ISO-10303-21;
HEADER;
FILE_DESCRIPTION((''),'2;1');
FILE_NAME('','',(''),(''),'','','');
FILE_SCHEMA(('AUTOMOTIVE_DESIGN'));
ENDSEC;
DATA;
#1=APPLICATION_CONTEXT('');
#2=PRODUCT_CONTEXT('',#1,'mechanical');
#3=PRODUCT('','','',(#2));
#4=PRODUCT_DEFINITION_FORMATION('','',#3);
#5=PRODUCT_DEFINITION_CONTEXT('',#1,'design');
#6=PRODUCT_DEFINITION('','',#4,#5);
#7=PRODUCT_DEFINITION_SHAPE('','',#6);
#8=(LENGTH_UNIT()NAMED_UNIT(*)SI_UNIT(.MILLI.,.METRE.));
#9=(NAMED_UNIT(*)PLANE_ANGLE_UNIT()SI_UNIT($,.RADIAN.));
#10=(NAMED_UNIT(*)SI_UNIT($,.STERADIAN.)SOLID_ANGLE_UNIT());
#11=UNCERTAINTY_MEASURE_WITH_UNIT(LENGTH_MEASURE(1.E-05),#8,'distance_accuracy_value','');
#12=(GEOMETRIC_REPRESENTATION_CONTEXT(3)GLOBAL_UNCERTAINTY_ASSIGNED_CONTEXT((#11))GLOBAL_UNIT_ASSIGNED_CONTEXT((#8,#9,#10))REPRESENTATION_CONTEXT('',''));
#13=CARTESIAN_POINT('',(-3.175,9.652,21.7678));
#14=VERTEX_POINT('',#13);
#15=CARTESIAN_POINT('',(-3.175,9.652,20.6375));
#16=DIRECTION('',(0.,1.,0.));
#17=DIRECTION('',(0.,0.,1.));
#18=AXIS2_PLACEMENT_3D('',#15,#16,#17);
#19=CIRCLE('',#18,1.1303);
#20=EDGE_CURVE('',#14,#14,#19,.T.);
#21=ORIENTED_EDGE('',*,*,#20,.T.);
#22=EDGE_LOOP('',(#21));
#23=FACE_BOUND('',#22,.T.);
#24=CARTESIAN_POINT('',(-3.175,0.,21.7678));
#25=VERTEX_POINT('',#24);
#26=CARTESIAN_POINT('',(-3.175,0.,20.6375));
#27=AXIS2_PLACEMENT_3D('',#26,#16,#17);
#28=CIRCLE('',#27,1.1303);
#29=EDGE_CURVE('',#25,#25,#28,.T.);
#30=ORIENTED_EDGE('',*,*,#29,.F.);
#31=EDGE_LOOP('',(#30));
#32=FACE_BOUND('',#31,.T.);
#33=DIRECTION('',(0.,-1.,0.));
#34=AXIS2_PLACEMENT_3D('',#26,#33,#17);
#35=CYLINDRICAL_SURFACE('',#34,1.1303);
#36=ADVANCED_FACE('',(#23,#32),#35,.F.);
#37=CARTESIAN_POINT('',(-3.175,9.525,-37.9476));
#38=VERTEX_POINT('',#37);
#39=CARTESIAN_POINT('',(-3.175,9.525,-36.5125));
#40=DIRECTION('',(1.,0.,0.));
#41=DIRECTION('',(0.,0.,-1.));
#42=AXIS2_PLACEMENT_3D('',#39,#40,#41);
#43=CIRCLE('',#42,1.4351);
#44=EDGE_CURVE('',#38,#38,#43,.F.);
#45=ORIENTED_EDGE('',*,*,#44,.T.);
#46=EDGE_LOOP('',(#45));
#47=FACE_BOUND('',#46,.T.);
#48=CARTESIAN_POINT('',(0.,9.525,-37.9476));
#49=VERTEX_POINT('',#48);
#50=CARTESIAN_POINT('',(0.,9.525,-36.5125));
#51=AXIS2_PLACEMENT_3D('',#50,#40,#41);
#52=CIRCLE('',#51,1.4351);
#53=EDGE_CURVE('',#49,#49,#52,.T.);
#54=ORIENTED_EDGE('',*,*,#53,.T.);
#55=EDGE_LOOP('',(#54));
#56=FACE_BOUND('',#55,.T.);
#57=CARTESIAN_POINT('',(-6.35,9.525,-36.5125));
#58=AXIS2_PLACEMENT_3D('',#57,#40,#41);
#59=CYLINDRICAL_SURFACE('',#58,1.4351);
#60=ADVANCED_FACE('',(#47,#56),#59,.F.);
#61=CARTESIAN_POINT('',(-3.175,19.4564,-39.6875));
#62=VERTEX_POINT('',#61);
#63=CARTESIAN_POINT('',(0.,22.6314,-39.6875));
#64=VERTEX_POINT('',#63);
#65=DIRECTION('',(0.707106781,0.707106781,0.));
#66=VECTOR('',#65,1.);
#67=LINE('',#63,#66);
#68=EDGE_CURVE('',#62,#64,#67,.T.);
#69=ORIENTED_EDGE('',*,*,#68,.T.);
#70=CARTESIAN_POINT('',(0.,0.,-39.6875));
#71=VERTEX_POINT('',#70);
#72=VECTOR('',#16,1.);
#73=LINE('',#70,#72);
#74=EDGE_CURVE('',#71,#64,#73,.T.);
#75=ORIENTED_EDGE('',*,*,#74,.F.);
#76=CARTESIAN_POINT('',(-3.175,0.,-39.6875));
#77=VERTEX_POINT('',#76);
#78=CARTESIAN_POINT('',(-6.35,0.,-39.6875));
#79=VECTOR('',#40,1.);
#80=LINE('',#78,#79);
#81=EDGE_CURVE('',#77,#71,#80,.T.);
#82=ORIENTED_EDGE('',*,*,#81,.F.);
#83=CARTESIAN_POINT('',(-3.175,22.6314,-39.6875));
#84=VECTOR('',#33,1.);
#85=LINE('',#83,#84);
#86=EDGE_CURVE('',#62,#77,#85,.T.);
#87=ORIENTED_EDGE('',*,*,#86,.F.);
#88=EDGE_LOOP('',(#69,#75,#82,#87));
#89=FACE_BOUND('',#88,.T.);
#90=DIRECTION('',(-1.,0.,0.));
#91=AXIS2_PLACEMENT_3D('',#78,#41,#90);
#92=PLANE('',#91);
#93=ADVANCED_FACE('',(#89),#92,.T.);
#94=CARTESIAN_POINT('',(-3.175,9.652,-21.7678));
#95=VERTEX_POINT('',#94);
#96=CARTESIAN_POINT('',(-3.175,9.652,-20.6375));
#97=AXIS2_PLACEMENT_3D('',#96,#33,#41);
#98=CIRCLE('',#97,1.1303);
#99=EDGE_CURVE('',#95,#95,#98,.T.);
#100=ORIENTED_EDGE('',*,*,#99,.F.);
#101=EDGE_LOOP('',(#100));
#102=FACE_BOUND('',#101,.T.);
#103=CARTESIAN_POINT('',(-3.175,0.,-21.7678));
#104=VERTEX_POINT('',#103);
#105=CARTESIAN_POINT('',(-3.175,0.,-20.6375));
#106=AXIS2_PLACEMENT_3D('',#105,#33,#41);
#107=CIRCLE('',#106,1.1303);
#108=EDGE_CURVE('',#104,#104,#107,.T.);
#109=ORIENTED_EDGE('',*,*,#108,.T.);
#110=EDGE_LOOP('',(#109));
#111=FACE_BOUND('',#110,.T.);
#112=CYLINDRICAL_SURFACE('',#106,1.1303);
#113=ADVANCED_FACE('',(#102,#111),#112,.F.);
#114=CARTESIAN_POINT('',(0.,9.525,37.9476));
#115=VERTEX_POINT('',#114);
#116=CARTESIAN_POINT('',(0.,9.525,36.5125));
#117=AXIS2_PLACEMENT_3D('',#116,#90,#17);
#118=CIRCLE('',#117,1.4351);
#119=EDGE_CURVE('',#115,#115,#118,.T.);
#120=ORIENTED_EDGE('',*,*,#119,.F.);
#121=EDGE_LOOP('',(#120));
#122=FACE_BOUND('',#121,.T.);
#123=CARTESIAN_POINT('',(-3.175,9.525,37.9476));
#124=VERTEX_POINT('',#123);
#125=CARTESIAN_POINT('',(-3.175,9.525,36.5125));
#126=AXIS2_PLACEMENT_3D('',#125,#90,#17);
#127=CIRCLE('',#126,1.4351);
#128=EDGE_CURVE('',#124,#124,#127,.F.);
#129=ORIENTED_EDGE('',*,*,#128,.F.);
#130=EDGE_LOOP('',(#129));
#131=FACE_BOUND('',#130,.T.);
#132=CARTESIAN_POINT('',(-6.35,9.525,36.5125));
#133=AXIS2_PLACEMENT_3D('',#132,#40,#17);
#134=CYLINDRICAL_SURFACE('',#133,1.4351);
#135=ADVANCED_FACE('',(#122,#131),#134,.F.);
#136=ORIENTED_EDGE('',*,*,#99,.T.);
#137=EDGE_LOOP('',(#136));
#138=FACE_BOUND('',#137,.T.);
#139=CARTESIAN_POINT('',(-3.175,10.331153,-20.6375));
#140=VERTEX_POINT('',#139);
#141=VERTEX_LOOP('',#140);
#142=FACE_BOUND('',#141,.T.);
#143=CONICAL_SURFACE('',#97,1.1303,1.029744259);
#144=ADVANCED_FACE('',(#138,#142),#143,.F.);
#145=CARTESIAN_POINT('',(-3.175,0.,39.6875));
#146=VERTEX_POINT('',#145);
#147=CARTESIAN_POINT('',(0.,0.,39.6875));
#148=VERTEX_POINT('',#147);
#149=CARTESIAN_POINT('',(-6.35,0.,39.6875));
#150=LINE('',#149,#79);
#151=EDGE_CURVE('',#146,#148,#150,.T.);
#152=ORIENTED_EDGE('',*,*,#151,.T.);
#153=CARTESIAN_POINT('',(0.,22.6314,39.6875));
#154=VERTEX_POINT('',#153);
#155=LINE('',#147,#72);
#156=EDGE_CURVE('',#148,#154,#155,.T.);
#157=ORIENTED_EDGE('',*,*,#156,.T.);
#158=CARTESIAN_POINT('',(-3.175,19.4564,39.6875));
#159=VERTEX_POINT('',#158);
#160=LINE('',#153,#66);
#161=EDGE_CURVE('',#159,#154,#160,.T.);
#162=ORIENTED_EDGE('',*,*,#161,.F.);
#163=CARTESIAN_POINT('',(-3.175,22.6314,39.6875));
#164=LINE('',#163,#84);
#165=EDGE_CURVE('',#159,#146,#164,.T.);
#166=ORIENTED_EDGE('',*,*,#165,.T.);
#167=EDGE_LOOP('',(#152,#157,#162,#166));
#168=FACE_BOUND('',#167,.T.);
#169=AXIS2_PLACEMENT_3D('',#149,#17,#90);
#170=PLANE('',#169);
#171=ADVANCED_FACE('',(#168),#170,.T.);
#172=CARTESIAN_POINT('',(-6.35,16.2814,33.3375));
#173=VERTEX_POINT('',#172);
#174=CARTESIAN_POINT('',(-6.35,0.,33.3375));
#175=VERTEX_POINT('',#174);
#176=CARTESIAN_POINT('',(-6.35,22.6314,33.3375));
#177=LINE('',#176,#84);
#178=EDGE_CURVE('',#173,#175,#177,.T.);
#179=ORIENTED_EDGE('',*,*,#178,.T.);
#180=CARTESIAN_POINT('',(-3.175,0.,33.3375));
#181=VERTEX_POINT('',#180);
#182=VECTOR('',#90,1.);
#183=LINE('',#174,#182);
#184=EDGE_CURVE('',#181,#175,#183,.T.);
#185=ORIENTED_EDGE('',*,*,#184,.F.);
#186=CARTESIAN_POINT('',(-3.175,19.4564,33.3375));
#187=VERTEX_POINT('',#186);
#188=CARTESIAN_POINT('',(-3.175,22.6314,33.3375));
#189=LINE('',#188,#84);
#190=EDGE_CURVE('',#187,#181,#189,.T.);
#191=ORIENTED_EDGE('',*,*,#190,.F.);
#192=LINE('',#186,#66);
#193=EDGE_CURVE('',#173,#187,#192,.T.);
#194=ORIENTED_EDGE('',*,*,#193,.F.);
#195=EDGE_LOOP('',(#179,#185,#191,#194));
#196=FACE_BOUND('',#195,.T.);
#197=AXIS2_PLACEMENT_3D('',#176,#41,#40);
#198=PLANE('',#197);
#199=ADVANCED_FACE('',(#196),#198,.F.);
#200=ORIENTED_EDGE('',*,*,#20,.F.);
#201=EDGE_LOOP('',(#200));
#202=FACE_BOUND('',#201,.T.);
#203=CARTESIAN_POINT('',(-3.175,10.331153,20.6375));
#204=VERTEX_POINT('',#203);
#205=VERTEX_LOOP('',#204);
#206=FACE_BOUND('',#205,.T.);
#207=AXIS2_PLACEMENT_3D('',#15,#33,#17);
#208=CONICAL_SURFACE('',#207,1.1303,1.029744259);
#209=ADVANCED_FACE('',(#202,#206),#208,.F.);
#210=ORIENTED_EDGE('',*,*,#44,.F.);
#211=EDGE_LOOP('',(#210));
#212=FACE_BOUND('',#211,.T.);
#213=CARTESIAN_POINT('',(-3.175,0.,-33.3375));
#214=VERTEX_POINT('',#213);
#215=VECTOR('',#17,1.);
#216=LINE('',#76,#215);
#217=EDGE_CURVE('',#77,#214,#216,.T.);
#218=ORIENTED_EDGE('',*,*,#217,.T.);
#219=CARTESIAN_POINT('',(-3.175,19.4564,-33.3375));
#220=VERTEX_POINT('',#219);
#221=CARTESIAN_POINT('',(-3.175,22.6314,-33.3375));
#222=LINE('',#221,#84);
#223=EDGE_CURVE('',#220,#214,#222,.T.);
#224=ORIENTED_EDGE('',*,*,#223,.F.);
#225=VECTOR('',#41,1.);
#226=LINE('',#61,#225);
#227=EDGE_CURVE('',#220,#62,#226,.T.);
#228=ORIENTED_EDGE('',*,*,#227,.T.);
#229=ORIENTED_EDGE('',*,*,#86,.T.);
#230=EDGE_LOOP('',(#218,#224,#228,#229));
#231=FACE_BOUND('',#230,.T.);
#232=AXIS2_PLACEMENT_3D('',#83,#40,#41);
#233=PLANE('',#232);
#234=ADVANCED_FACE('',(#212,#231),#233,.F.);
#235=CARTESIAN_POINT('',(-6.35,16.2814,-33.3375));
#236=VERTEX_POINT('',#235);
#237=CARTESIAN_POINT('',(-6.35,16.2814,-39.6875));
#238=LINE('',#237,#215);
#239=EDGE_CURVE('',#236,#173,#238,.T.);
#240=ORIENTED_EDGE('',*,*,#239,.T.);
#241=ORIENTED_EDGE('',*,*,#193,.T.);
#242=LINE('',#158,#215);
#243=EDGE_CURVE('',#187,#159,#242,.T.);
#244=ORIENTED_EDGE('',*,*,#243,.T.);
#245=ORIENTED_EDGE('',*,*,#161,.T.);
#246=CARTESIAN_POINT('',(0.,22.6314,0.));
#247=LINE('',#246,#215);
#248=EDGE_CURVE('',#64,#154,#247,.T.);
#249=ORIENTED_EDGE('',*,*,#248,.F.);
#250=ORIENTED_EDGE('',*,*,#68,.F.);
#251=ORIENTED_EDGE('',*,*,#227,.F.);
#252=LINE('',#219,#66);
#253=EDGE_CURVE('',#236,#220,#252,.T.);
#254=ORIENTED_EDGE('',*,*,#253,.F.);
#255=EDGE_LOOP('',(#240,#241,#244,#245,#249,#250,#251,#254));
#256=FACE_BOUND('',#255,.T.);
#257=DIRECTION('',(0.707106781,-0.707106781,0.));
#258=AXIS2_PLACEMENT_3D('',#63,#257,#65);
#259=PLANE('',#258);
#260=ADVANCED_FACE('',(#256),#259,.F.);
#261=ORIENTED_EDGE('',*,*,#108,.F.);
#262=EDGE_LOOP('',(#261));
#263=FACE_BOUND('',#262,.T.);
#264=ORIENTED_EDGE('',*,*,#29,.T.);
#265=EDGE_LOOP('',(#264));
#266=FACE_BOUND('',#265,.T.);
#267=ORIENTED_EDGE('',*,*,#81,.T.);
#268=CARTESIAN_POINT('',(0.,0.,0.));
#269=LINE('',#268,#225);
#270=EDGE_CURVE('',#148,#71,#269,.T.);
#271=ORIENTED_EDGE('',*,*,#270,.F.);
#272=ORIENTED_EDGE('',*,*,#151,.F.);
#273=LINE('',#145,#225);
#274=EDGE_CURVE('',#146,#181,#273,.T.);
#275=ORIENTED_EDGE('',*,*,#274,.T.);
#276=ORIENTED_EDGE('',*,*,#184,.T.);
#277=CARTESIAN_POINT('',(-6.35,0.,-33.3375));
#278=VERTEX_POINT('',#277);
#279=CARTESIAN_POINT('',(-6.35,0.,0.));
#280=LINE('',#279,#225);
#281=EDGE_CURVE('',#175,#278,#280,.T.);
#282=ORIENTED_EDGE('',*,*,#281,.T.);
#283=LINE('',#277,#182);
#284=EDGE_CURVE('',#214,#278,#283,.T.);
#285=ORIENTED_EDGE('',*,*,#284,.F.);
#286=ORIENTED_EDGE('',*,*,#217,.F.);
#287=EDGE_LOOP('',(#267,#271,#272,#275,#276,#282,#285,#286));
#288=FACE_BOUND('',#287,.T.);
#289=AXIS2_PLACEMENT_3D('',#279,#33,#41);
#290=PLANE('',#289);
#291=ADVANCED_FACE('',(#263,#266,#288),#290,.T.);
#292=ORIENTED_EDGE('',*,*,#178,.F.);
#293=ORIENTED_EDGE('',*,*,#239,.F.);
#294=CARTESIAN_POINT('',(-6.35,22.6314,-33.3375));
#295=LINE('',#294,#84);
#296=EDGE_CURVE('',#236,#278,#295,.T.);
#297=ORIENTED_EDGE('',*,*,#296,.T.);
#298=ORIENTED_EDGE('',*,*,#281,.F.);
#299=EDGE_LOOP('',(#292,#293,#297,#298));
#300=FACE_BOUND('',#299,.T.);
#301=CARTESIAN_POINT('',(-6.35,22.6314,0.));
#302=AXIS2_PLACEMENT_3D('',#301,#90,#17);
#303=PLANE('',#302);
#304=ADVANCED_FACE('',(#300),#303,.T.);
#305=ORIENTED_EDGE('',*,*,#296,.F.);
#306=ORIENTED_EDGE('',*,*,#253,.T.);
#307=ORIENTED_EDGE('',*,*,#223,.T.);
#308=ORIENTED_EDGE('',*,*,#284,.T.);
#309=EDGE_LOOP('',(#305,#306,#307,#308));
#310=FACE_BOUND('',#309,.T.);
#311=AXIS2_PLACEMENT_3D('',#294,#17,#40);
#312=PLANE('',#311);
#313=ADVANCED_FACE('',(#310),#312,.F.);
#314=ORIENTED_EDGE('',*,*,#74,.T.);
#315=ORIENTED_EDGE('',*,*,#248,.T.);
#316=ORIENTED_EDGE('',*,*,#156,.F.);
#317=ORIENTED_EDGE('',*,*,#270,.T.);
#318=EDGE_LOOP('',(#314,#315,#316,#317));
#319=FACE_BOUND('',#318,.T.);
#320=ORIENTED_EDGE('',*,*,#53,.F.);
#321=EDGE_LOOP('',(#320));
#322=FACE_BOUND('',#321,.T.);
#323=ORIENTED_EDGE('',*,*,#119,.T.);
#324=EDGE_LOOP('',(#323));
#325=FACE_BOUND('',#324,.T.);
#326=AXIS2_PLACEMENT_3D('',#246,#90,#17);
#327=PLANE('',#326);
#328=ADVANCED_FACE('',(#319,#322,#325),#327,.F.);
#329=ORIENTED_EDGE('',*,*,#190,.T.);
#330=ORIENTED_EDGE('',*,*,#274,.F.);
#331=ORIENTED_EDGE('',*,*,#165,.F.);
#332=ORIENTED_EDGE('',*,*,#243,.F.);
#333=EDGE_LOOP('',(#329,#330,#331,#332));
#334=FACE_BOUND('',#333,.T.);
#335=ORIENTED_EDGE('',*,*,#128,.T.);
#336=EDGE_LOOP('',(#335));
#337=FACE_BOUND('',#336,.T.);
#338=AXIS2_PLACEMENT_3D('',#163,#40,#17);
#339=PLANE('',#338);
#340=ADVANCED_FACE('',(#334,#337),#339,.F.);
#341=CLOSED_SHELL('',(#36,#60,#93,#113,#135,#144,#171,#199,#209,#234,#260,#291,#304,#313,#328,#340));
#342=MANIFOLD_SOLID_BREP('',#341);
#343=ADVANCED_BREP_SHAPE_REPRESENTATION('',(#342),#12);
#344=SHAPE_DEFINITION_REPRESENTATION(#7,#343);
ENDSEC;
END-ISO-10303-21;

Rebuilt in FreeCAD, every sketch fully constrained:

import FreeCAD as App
import Part
import Sketcher

V = App.Vector
Q = App.Units.Quantity


def add_polygon(sketch, points):
    """Adds a closed chain of lines whose ends are joined by coincident constraints."""
    first, n = sketch.GeometryCount, len(points)
    for a, b in zip(points, points[1:] + points[:1]):
        sketch.addGeometry(Part.LineSegment(App.Vector(*a, 0), App.Vector(*b, 0)), False)
    for i in range(n):
        sketch.addConstraint(Sketcher.Constraint("Coincident", first + i, 2, first + (i + 1) % n, 1))

doc = App.newDocument("Part")
body = doc.addObject("PartDesign::Body", "Body")

# Sketch on YZ plane
sketch1 = doc.addObject("Sketcher::SketchObject", "Sketch")
body.addObject(sketch1)
sketch1.AttachmentSupport = (doc.YZ_Plane, [""])
sketch1.MapMode = "FlatFace"
add_polygon(sketch1, [(22.6, 0), (0, 0), (0, -39.7), (22.6, -39.7)])  # lines 0-3
sketch1.addGeometry(Part.Circle(V(9.5, -36.5, 0), V(0, 0, 1), 1.4), False)  # 4
sketch1.addConstraint([
    Sketcher.Constraint("Horizontal", 0),
    Sketcher.Constraint("Vertical", 1),
    Sketcher.Constraint("Horizontal", 2),
    Sketcher.Constraint("Vertical", 3),
    Sketcher.Constraint("Coincident", 0, 2, -1, 1),
    Sketcher.Constraint("Diameter", 4, Q("0.113 in")),
    Sketcher.Constraint("DistanceX", 0, 2, 0, 1, Q("0.891 in")),
    Sketcher.Constraint("DistanceY", 1, 2, 1, 1, Q("1.5625 in")),
    Sketcher.Constraint("DistanceX", -1, 1, 4, 3, Q("0.375 in")),
    Sketcher.Constraint("DistanceY", 4, 3, -1, 1, Q("1.4375 in")),
])
pad1 = doc.addObject("PartDesign::Pad", "Pad")
body.addObject(pad1)
pad1.Profile = sketch1
pad1.Length = Q("0.25 in")
pad1.Reversed = True

# Sketch on XZ plane
sketch2 = doc.addObject("Sketcher::SketchObject", "Sketch001")
body.addObject(sketch2)
sketch2.AttachmentSupport = (doc.XZ_Plane, [""])
sketch2.MapMode = "FlatFace"
add_polygon(sketch2, [(-6.3, -33.3), (-6.3, -39.7), (-3.2, -39.7), (-3.2, -33.3)])  # lines 0-3
sketch2.addConstraint([
    Sketcher.Constraint("Vertical", 0),
    Sketcher.Constraint("Horizontal", 1),
    Sketcher.Constraint("Vertical", 2),
    Sketcher.Constraint("Horizontal", 3),
    Sketcher.Constraint("DistanceY", 0, 2, 0, 1, Q("0.25 in")),
    Sketcher.Constraint("DistanceX", 1, 1, 1, 2, Q("0.125 in")),
    Sketcher.Constraint("DistanceX", 0, 2, -1, 1, Q("0.25 in")),
    Sketcher.Constraint("DistanceY", 0, 2, -1, 1, Q("1.5625 in")),
])
pocket1 = doc.addObject("PartDesign::Pocket", "Pocket")
body.addObject(pocket1)
pocket1.Profile = sketch2
pocket1.Type = "ThroughAll"

# Sketch on XY plane
sketch3 = doc.addObject("Sketcher::SketchObject", "Sketch002")
body.addObject(sketch3)
sketch3.AttachmentSupport = (doc.XY_Plane, [""])
sketch3.MapMode = "FlatFace"
add_polygon(sketch3, [(-6, 16), (0, 23), (-6, 23)])  # lines 0-2
sketch3.addConstraint([
    Sketcher.Constraint("Horizontal", 1),
    Sketcher.Constraint("Vertical", 2),
    Sketcher.Constraint("PointOnObject", 0, 2, -2),
    Sketcher.Constraint("Equal", 1, 2),
    Sketcher.Constraint("DistanceX", 1, 2, 1, 1, Q("0.25 in")),
    Sketcher.Constraint("DistanceY", -1, 1, 0, 2, Q("0.891 in")),
])
pocket2 = doc.addObject("PartDesign::Pocket", "Pocket001")
body.addObject(pocket2)
pocket2.Profile = sketch3
pocket2.Type = "ThroughAll"

# Sketch on XZ plane
sketch4 = doc.addObject("Sketcher::SketchObject", "Sketch003")
body.addObject(sketch4)
sketch4.AttachmentSupport = (doc.XZ_Plane, [""])
sketch4.MapMode = "FlatFace"
sketch4.addGeometry(Part.Circle(V(-3.2, -20.6, 0), V(0, 0, 1), 1.1), False)
sketch4.addConstraint([
    Sketcher.Constraint("Diameter", 0, Q("0.089 in")),
    Sketcher.Constraint("DistanceX", 0, 3, -1, 1, Q("0.125 in")),
    Sketcher.Constraint("DistanceY", 0, 3, -1, 1, Q("0.8125 in")),
])
doc.recompute()
hole = doc.addObject("PartDesign::Hole", "Hole")
body.addObject(hole)
hole.Profile = sketch4
hole.ThreadType = "None"
hole.Diameter = Q("0.089 in")
hole.DepthType = "Dimension"
hole.Depth = Q("0.38 in")
hole.DrillPoint = "Angled"
hole.DrillPointAngle = 118
body2 = doc.addObject("PartDesign::Body", "Body001")
doc.recompute()

body2.BaseFeature = body
doc.recompute()

mirroring = doc.addObject("Part::Mirroring", "Mirroring")
mirroring.Source = body
mirroring.Base = V(-6.35, 0, 0)
mirroring.Normal = V(0, 0, 1)
body3 = doc.addObject("PartDesign::Body", "Body002")
body3.BaseFeature = mirroring
boolean = doc.addObject("PartDesign::Boolean", "Boolean")
body2.addObject(boolean)
boolean.Type = "Fuse"
boolean.addObjects([body3])
doc.recompute()
mirroring.Visibility = False

doc.recompute()
